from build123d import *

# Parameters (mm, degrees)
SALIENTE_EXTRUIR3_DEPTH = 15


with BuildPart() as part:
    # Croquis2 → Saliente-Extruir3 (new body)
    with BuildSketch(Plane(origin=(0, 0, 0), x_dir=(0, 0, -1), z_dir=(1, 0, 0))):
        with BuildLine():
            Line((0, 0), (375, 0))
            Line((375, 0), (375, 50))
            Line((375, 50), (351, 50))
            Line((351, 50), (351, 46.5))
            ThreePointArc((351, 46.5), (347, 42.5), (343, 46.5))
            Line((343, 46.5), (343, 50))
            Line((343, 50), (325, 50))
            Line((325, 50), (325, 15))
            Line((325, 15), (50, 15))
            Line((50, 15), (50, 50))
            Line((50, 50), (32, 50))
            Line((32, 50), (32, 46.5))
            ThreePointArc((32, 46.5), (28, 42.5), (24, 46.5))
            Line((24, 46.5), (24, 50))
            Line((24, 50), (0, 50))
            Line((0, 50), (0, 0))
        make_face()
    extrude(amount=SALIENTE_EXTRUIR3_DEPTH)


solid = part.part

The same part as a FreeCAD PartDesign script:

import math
import FreeCAD as App
import Part
import Sketcher
from FreeCAD import Vector

doc = App.newDocument("Part")
params = doc.addObject("Spreadsheet::Sheet", "Params")
for row, (alias, value) in enumerate([
    ("sketch1_radius", "4 mm"),
    ("sketch1_width", "50 mm"),
    ("sketch1_width2", "35 mm"),
    ("sketch1_height", "375 mm"),
    ("sketch1_height2", "24 mm"),
    ("pad1_length", "15 mm"),
], start=1):
    params.set(f"A{row}", alias)
    params.set(f"B{row}", "=" + value)
    params.setAlias(f"B{row}", alias)

body = doc.addObject("PartDesign::Body", "Body")

# Sketch on YZ plane
sketch1 = body.newObject("Sketcher::SketchObject", "Sketch")
sketch1.AttachmentSupport = (doc.getObject("YZ_Plane"), [""])
sketch1.MapMode = "FlatFace"
sketch1.addGeometry([
    Part.LineSegment(Vector(0, 0, 0), Vector(0, -375, 0)),  # 0
    Part.LineSegment(Vector(0, -375, 0), Vector(50, -375, 0)),  # 1
    Part.LineSegment(Vector(50, -375, 0), Vector(50, -351, 0)),  # 2
    Part.LineSegment(Vector(50, -351, 0), Vector(46.5, -351, 0)),  # 3
    Part.ArcOfCircle(Part.Circle(Vector(46.5, -347, 0), Vector(0, 0, 1), 4), math.radians(90), math.radians(270)),  # 4
    Part.LineSegment(Vector(46.5, -343, 0), Vector(50, -343, 0)),  # 5
    Part.LineSegment(Vector(50, -343, 0), Vector(50, -325, 0)),  # 6
    Part.LineSegment(Vector(50, -325, 0), Vector(15, -325, 0)),  # 7
    Part.LineSegment(Vector(15, -325, 0), Vector(15, -50, 0)),  # 8
    Part.LineSegment(Vector(15, -50, 0), Vector(50, -50, 0)),  # 9
    Part.LineSegment(Vector(50, -50, 0), Vector(50, -32, 0)),  # 10
    Part.LineSegment(Vector(50, -32, 0), Vector(46.5, -32, 0)),  # 11
    Part.ArcOfCircle(Part.Circle(Vector(46.5, -28, 0), Vector(0, 0, 1), 4), math.radians(90), math.radians(270)),  # 12
    Part.LineSegment(Vector(46.5, -24, 0), Vector(50, -24, 0)),  # 13
    Part.LineSegment(Vector(50, -24, 0), Vector(50, 0, 0)),  # 14
    Part.LineSegment(Vector(50, 0, 0), Vector(0, 0, 0)),  # 15
], False)
sketch1.addConstraint([
    Sketcher.Constraint("Coincident", 0, 2, 1, 1),
    Sketcher.Constraint("Coincident", 1, 2, 2, 1),
    Sketcher.Constraint("Coincident", 2, 2, 3, 1),
    Sketcher.Constraint("Tangent", 3, 2, 4, 2),
    Sketcher.Constraint("Tangent", 4, 1, 5, 1),
    Sketcher.Constraint("Coincident", 5, 2, 6, 1),
    Sketcher.Constraint("Coincident", 6, 2, 7, 1),
    Sketcher.Constraint("Coincident", 7, 2, 8, 1),
    Sketcher.Constraint("Coincident", 8, 2, 9, 1),
    Sketcher.Constraint("Coincident", 9, 2, 10, 1),
    Sketcher.Constraint("Coincident", 10, 2, 11, 1),
    Sketcher.Constraint("Tangent", 11, 2, 12, 2),
    Sketcher.Constraint("Tangent", 12, 1, 13, 1),
    Sketcher.Constraint("Coincident", 13, 2, 14, 1),
    Sketcher.Constraint("Coincident", 14, 2, 15, 1),
    Sketcher.Constraint("Coincident", 15, 2, 0, 1),
    Sketcher.Constraint("Vertical", 0),
    Sketcher.Constraint("Horizontal", 1),
    Sketcher.Constraint("Vertical", 2),
    Sketcher.Constraint("Horizontal", 3),
    Sketcher.Constraint("Horizontal", 5),
    Sketcher.Constraint("Vertical", 6),
    Sketcher.Constraint("Horizontal", 7),
    Sketcher.Constraint("Vertical", 8),
    Sketcher.Constraint("Horizontal", 9),
    Sketcher.Constraint("Vertical", 10),
    Sketcher.Constraint("Horizontal", 11),
    Sketcher.Constraint("Horizontal", 13),
    Sketcher.Constraint("Vertical", 14),
    Sketcher.Constraint("Horizontal", 15),
    Sketcher.Constraint("Coincident", 15, 2, -1, 1),
    Sketcher.Constraint("Equal", 4, 12),
    Sketcher.Constraint("Vertical", 4, 3, 12, 3),
    Sketcher.Constraint("Vertical", 2, 2, 5, 2),
    Sketcher.Constraint("Vertical", 6, 2, 9, 2),
    Sketcher.Constraint("Vertical", 10, 2, 13, 2),
    Sketcher.Constraint("Equal", 6, 10),
    Sketcher.Constraint("Equal", 2, 14),
    Sketcher.Constraint("Radius", 4, 4.0),
    Sketcher.Constraint("DistanceX", 1, 1, 1, 2, 50.0),
    Sketcher.Constraint("DistanceX", 7, 2, 7, 1, 35.0),
    Sketcher.Constraint("DistanceY", 0, 2, 0, 1, 375.0),
    Sketcher.Constraint("DistanceY", 2, 1, 2, 2, 24.0),
    Sketcher.Constraint("DistanceY", 6, 1, 6, 2, 18.0),
    Sketcher.Constraint("DistanceX", 3, 2, 3, 1, 3.5),
])
sketch1.setExpression("Constraints[38]", "Params.sketch1_radius")
sketch1.setExpression("Constraints[39]", "Params.sketch1_width")
sketch1.setExpression("Constraints[40]", "Params.sketch1_width2")
sketch1.setExpression("Constraints[41]", "Params.sketch1_height")
sketch1.setExpression("Constraints[42]", "Params.sketch1_height2")
pad1 = body.newObject("PartDesign::Pad", "Pad")
pad1.Profile = sketch1
pad1.setExpression("Length", "Params.pad1_length")

doc.recompute()
